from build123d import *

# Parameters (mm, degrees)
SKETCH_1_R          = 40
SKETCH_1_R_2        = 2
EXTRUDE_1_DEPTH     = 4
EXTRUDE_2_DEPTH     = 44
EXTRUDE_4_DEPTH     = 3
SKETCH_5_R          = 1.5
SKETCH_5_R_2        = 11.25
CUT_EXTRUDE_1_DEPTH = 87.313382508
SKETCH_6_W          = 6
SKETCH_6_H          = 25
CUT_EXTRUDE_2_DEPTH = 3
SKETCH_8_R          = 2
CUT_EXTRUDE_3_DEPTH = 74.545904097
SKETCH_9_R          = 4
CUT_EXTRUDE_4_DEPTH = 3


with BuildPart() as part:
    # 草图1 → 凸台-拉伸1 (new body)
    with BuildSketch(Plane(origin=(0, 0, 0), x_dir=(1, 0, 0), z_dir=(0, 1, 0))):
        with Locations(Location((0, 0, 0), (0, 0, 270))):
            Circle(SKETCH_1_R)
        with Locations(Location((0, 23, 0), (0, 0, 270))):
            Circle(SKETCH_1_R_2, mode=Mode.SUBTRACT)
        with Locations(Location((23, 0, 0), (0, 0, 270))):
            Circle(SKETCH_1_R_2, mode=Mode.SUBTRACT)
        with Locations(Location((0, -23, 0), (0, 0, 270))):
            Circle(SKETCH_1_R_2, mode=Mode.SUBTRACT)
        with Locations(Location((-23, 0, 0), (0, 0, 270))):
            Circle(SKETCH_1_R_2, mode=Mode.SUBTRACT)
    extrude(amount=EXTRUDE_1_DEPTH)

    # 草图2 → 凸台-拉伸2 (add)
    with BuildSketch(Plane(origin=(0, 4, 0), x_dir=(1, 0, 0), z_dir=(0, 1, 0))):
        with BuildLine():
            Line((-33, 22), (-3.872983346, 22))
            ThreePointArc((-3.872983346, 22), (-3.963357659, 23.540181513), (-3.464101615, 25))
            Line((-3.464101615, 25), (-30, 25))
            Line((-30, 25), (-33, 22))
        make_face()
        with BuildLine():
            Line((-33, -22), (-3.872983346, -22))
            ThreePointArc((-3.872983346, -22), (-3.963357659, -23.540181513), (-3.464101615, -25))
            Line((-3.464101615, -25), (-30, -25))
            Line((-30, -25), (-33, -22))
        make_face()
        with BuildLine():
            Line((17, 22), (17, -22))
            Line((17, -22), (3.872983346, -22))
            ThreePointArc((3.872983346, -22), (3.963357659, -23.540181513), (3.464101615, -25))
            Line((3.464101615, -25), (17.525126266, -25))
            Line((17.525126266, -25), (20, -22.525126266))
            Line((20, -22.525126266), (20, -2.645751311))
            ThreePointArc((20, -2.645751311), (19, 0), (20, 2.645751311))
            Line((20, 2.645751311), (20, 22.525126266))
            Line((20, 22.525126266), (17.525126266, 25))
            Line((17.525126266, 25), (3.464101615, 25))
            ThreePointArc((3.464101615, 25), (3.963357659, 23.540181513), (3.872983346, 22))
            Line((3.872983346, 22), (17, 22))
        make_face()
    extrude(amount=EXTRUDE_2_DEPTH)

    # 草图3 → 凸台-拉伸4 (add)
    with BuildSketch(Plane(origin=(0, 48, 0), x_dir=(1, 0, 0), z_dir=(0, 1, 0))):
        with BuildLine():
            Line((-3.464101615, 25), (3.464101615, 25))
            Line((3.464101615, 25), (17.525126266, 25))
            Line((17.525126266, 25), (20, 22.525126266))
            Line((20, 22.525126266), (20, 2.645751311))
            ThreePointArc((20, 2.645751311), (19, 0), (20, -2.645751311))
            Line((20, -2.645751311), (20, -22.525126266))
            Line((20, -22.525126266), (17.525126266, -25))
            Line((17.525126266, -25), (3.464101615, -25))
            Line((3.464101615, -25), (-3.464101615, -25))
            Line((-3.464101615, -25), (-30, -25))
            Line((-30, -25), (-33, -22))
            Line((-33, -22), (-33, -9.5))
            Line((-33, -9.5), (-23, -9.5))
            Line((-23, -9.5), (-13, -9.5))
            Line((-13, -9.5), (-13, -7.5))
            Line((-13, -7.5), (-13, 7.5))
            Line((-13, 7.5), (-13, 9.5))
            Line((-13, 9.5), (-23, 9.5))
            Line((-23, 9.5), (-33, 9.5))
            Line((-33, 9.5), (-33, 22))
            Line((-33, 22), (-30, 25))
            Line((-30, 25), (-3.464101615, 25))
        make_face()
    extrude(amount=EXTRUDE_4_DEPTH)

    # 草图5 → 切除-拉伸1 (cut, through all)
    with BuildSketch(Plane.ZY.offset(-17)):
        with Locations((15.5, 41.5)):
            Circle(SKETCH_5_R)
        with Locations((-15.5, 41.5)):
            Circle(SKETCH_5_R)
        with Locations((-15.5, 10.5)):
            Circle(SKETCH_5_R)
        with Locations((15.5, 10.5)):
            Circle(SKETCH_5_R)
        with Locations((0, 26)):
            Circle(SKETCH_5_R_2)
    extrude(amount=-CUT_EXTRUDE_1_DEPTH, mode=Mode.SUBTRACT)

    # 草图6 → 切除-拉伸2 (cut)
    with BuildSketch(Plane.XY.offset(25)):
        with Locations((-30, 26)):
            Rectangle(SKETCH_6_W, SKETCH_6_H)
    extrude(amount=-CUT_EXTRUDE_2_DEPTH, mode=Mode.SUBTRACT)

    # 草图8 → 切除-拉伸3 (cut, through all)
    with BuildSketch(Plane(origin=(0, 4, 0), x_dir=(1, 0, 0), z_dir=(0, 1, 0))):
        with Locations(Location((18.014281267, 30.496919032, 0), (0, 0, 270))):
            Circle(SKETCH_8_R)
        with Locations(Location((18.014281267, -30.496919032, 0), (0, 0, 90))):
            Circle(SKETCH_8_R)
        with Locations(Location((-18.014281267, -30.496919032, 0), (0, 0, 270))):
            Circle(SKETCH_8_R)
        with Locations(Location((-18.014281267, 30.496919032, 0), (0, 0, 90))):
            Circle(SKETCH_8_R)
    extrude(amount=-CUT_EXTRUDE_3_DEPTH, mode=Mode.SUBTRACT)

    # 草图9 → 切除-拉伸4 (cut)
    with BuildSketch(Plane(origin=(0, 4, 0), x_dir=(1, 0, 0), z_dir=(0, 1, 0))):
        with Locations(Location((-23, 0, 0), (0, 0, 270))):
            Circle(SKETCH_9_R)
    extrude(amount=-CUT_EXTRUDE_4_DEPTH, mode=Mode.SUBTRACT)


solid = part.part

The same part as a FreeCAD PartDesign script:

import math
import FreeCAD as App
import Part
import Sketcher

V = App.Vector


def add_polygon(sketch, points):
    """Adds a closed chain of lines whose ends are joined by coincident constraints."""
    first, n = sketch.GeometryCount, len(points)
    for a, b in zip(points, points[1:] + points[:1]):
        sketch.addGeometry(Part.LineSegment(App.Vector(*a, 0), App.Vector(*b, 0)), False)
    for i in range(n):
        sketch.addConstraint(Sketcher.Constraint("Coincident", first + i, 2, first + (i + 1) % n, 1))

doc = App.newDocument("Part")
params = doc.addObject("Spreadsheet::Sheet", "Params")
for row, (alias, value) in enumerate([
    ("sketch1_diameter", "80 mm"),
    ("sketch1_diameter2", "4 mm"),
    ("pad1_length", "4 mm"),
    ("sketch2_radius", "4 mm"),
    ("sketch2_height", "44 mm"),
    ("sketch2_length", "3.5 mm"),
    ("pad2_length", "44 mm"),
    ("sketch3_radius", "4 mm"),
    ("sketch3_width", "20 mm"),
    ("sketch3_height", "19 mm"),
    ("sketch3_height2", "12.5 mm"),
    ("sketch3_length", "3.5 mm"),
    ("pad3_length", "3 mm"),
    ("sketch4_diameter", "3 mm"),
    ("sketch4_diameter2", "22.5 mm"),
    ("sketch5_width", "6 mm"),
    ("sketch5_height", "25 mm"),
    ("pocket2_length", "3 mm"),
    ("sketch6_diameter", "4 mm"),
    ("sketch7_diameter", "8 mm"),
    ("pocket4_length", "3 mm"),
], start=1):
    params.set(f"A{row}", alias)
    params.set(f"B{row}", "=" + value)
    params.setAlias(f"B{row}", alias)

body = doc.addObject("PartDesign::Body", "Body")

# Sketch on XZ plane
sketch1 = body.newObject("Sketcher::SketchObject", "Sketch")
sketch1.AttachmentSupport = (doc.getObject("XZ_Plane"), [""])
sketch1.MapMode = "FlatFace"
sketch1.addGeometry([
    Part.Circle(V(0, 0, 0), V(0, 0, 1), 40),  # 0
    Part.Circle(V(0, -23, 0), V(0, 0, 1), 2),  # 1
    Part.Circle(V(-23, 0, 0), V(0, 0, 1), 2),  # 2
    Part.Circle(V(23, 0, 0), V(0, 0, 1), 2),  # 3
    Part.Circle(V(0, 23, 0), V(0, 0, 1), 2),  # 4
], False)
sketch1.addConstraint([
    Sketcher.Constraint("Coincident", 0, 3, -1, 1),
    Sketcher.Constraint("Equal", 1, 2),
    Sketcher.Constraint("Equal", 2, 3),
    Sketcher.Constraint("Equal", 3, 4),
    Sketcher.Constraint("Symmetric", 2, 3, 3, 3, -1, 1),
    Sketcher.Constraint("Symmetric", 1, 3, 4, 3, -1, 1),
    Sketcher.Constraint("PointOnObject", 1, 3, -2),
    Sketcher.Constraint("PointOnObject", 2, 3, -1),
    Sketcher.Constraint("Diameter", 0, 80.0),
    Sketcher.Constraint("Diameter", 1, 4.0),
    Sketcher.Constraint("DistanceY", 1, 3, -1, 1, 23.0),
    Sketcher.Constraint("DistanceX", 2, 3, -1, 1, 23.0),
])
sketch1.setExpression("Constraints[8]", "Params.sketch1_diameter")
sketch1.setExpression("Constraints[9]", "Params.sketch1_diameter2")
pad1 = body.newObject("PartDesign::Pad", "Pad")
pad1.Profile = sketch1
pad1.setExpression("Length", "Params.pad1_length")
pad1.Reversed = True

# Sketch on XZ plane
sketch2 = body.newObject("Sketcher::SketchObject", "Sketch001")
sketch2.AttachmentSupport = (doc.getObject("XZ_Plane"), [""])
sketch2.MapMode = "FlatFace"
sketch2.AttachmentOffset = App.Placement(V(0, 0, -4), App.Rotation())
sketch2.addGeometry([
    Part.LineSegment(V(-33, -22, 0), V(-3.9, -22, 0)),  # 0
    Part.ArcOfCircle(Part.Circle(V(0, -23, 0), V(0, 0, 1), 4), math.radians(166), math.radians(210)),  # 1
    Part.LineSegment(V(-3.5, -25, 0), V(-30, -25, 0)),  # 2
    Part.LineSegment(V(-30, -25, 0), V(-33, -22, 0)),  # 3
    Part.LineSegment(V(-3.9, 22, 0), V(-33, 22, 0)),  # 4
    Part.LineSegment(V(-33, 22, 0), V(-30, 25, 0)),  # 5
    Part.LineSegment(V(-30, 25, 0), V(-3.5, 25, 0)),  # 6
    Part.ArcOfCircle(Part.Circle(V(0, 23, 0), V(0, 0, 1), 4), math.radians(150), math.radians(194)),  # 7
    Part.LineSegment(V(17, -22, 0), V(17, 22, 0)),  # 8
    Part.LineSegment(V(17, 22, 0), V(3.9, 22, 0)),  # 9
    Part.ArcOfCircle(Part.Circle(V(0, 23, 0), V(0, 0, 1), 4), math.radians(-14), math.radians(30)),  # 10
    Part.LineSegment(V(3.5, 25, 0), V(17.5, 25, 0)),  # 11
    Part.LineSegment(V(17.5, 25, 0), V(20, 22.5, 0)),  # 12
    Part.LineSegment(V(20, 22.5, 0), V(20, 2.6, 0)),  # 13
    Part.ArcOfCircle(Part.Circle(V(23, 0, 0), V(0, 0, 1), 4), math.radians(139), math.radians(221)),  # 14
    Part.LineSegment(V(20, -2.6, 0), V(20, -22.5, 0)),  # 15
    Part.LineSegment(V(20, -22.5, 0), V(17.5, -25, 0)),  # 16
    Part.LineSegment(V(17.5, -25, 0), V(3.5, -25, 0)),  # 17
    Part.ArcOfCircle(Part.Circle(V(0, -23, 0), V(0, 0, 1), 4), math.radians(-30), math.radians(14)),  # 18
    Part.LineSegment(V(3.9, -22, 0), V(17, -22, 0)),  # 19
], False)
sketch2.addConstraint([
    Sketcher.Constraint("Coincident", 0, 2, 1, 1),
    Sketcher.Constraint("Coincident", 1, 2, 2, 1),
    Sketcher.Constraint("Coincident", 2, 2, 3, 1),
    Sketcher.Constraint("Coincident", 3, 2, 0, 1),
    Sketcher.Constraint("Coincident", 4, 2, 5, 1),
    Sketcher.Constraint("Coincident", 5, 2, 6, 1),
    Sketcher.Constraint("Coincident", 6, 2, 7, 1),
    Sketcher.Constraint("Coincident", 7, 2, 4, 1),
    Sketcher.Constraint("Coincident", 8, 2, 9, 1),
    Sketcher.Constraint("Coincident", 9, 2, 10, 1),
    Sketcher.Constraint("Coincident", 10, 2, 11, 1),
    Sketcher.Constraint("Coincident", 11, 2, 12, 1),
    Sketcher.Constraint("Coincident", 12, 2, 13, 1),
    Sketcher.Constraint("Coincident", 13, 2, 14, 1),
    Sketcher.Constraint("Coincident", 14, 2, 15, 1),
    Sketcher.Constraint("Coincident", 15, 2, 16, 1),
    Sketcher.Constraint("Coincident", 16, 2, 17, 1),
    Sketcher.Constraint("Coincident", 17, 2, 18, 1),
    Sketcher.Constraint("Coincident", 18, 2, 19, 1),
    Sketcher.Constraint("Coincident", 19, 2, 8, 1),
    Sketcher.Constraint("Horizontal", 0),
    Sketcher.Constraint("Horizontal", 2),
    Sketcher.Constraint("Horizontal", 4),
    Sketcher.Constraint("Horizontal", 6),
    Sketcher.Constraint("Vertical", 8),
    Sketcher.Constraint("Horizontal", 9),
    Sketcher.Constraint("Horizontal", 11),
    Sketcher.Constraint("Vertical", 13),
    Sketcher.Constraint("Vertical", 15),
    Sketcher.Constraint("Horizontal", 17),
    Sketcher.Constraint("Horizontal", 19),
    Sketcher.Constraint("Coincident", 10, 3, 7, 3),
    Sketcher.Constraint("Coincident", 18, 3, 1, 3),
    Sketcher.Constraint("Equal", 1, 7),
    Sketcher.Constraint("Equal", 7, 10),
    Sketcher.Constraint("Equal", 10, 14),
    Sketcher.Constraint("Equal", 14, 18),
    Sketcher.Constraint("Symmetric", 1, 3, 7, 3, -1, 1),
    Sketcher.Constraint("Symmetric", 7, 2, 9, 2, -2),
    Sketcher.Constraint("Symmetric", 3, 2, 4, 2, -1),
    Sketcher.Constraint("Symmetric", 2, 2, 5, 2, -1),
    Sketcher.Constraint("Symmetric", 13, 2, 14, 2, -1),
    Sketcher.Constraint("Symmetric", 11, 2, 16, 2, -1),
    Sketcher.Constraint("Perpendicular", 3, 5),
    Sketcher.Constraint("Perpendicular", 5, 12),
    Sketcher.Constraint("Perpendicular", 12, 16),
    Sketcher.Constraint("Horizontal", 6, 2, 10, 2),
    Sketcher.Constraint("Horizontal", 3, 2, 18, 2),
    Sketcher.Constraint("Radius", 1, 4.0),
    Sketcher.Constraint("DistanceY", 8, 1, 8, 2, 44.0),
    Sketcher.Constraint("DistanceY", 1, 3, -1, 1, 23.0),
    Sketcher.Constraint("DistanceX", -1, 1, 14, 3, 23.0),
    Sketcher.Constraint("DistanceY", 1, 2, -1, 1, 25.0),
    Sketcher.Constraint("DistanceX", 2, 2, -1, 1, 30.0),
    Sketcher.Constraint("DistanceX", -1, 1, 8, 2, 17.0),
    Sketcher.Constraint("DistanceX", -1, 1, 12, 2, 20.0),
    Sketcher.Constraint("Distance", 12, 3.5),
])
sketch2.setExpression("Constraints[48]", "Params.sketch2_radius")
sketch2.setExpression("Constraints[49]", "Params.sketch2_height")
sketch2.setExpression("Constraints[56]", "Params.sketch2_length")
pad2 = body.newObject("PartDesign::Pad", "Pad001")
pad2.Profile = sketch2
pad2.setExpression("Length", "Params.pad2_length")
pad2.Reversed = True

# Sketch on XZ plane
sketch3 = body.newObject("Sketcher::SketchObject", "Sketch002")
sketch3.AttachmentSupport = (doc.getObject("XZ_Plane"), [""])
sketch3.MapMode = "FlatFace"
sketch3.AttachmentOffset = App.Placement(V(0, 0, -48), App.Rotation())
sketch3.addGeometry([
    Part.LineSegment(V(20, -22.5, 0), V(17.5, -25, 0)),  # 0
    Part.LineSegment(V(17.5, -25, 0), V(-30, -25, 0)),  # 1
    Part.LineSegment(V(-30, -25, 0), V(-33, -22, 0)),  # 2
    Part.LineSegment(V(-33, -22, 0), V(-33, -9.5, 0)),  # 3
    Part.LineSegment(V(-33, -9.5, 0), V(-13, -9.5, 0)),  # 4
    Part.LineSegment(V(-13, -9.5, 0), V(-13, 9.5, 0)),  # 5
    Part.LineSegment(V(-13, 9.5, 0), V(-33, 9.5, 0)),  # 6
    Part.LineSegment(V(-33, 9.5, 0), V(-33, 22, 0)),  # 7
    Part.LineSegment(V(-33, 22, 0), V(-30, 25, 0)),  # 8
    Part.LineSegment(V(-30, 25, 0), V(17.5, 25, 0)),  # 9
    Part.LineSegment(V(17.5, 25, 0), V(20, 22.5, 0)),  # 10
    Part.LineSegment(V(20, 22.5, 0), V(20, 2.6, 0)),  # 11
    Part.ArcOfCircle(Part.Circle(V(23, 0, 0), V(0, 0, 1), 4), math.radians(139), math.radians(221)),  # 12
    Part.LineSegment(V(20, -2.6, 0), V(20, -22.5, 0)),  # 13
], False)
sketch3.addConstraint([
    Sketcher.Constraint("Coincident", 0, 2, 1, 1),
    Sketcher.Constraint("Coincident", 1, 2, 2, 1),
    Sketcher.Constraint("Coincident", 2, 2, 3, 1),
    Sketcher.Constraint("Coincident", 3, 2, 4, 1),
    Sketcher.Constraint("Coincident", 4, 2, 5, 1),
    Sketcher.Constraint("Coincident", 5, 2, 6, 1),
    Sketcher.Constraint("Coincident", 6, 2, 7, 1),
    Sketcher.Constraint("Coincident", 7, 2, 8, 1),
    Sketcher.Constraint("Coincident", 8, 2, 9, 1),
    Sketcher.Constraint("Coincident", 9, 2, 10, 1),
    Sketcher.Constraint("Coincident", 10, 2, 11, 1),
    Sketcher.Constraint("Coincident", 11, 2, 12, 1),
    Sketcher.Constraint("Coincident", 12, 2, 13, 1),
    Sketcher.Constraint("Coincident", 13, 2, 0, 1),
    Sketcher.Constraint("Horizontal", 1),
    Sketcher.Constraint("Vertical", 3),
    Sketcher.Constraint("Horizontal", 4),
    Sketcher.Constraint("Vertical", 5),
    Sketcher.Constraint("Horizontal", 6),
    Sketcher.Constraint("Vertical", 7),
    Sketcher.Constraint("Horizontal", 9),
    Sketcher.Constraint("Vertical", 11),
    Sketcher.Constraint("Vertical", 13),
    Sketcher.Constraint("Symmetric", 3, 2, 6, 2, -1),
    Sketcher.Constraint("Symmetric", 1, 2, 8, 2, -1),
    Sketcher.Constraint("Symmetric", 11, 2, 12, 2, -1),
    Sketcher.Constraint("Perpendicular", 0, 2),
    Sketcher.Constraint("Perpendicular", 2, 8),
    Sketcher.Constraint("Perpendicular", 8, 10),
    Sketcher.Constraint("Vertical", 0, 2, 9, 2),
    Sketcher.Constraint("Equal", 3, 7),
    Sketcher.Constraint("Radius", 12, 4.0),
    Sketcher.Constraint("DistanceX", 4, 1, 4, 2, 20.0),
    Sketcher.Constraint("DistanceY", 5, 1, 5, 2, 19.0),
    Sketcher.Constraint("DistanceY", 3, 1, 3, 2, 12.5),
    Sketcher.Constraint("DistanceX", -1, 1, 12, 3, 23.0),
    Sketcher.Constraint("DistanceY", 0, 2, -1, 1, 25.0),
    Sketcher.Constraint("DistanceX", 1, 2, -1, 1, 30.0),
    Sketcher.Constraint("DistanceX", -1, 1, 10, 2, 20.0),
    Sketcher.Constraint("Distance", 0, 3.5),
])
sketch3.setExpression("Constraints[31]", "Params.sketch3_radius")
sketch3.setExpression("Constraints[32]", "Params.sketch3_width")
sketch3.setExpression("Constraints[33]", "Params.sketch3_height")
sketch3.setExpression("Constraints[34]", "Params.sketch3_height2")
sketch3.setExpression("Constraints[39]", "Params.sketch3_length")
pad3 = body.newObject("PartDesign::Pad", "Pad002")
pad3.Profile = sketch3
pad3.setExpression("Length", "Params.pad3_length")
pad3.Reversed = True

# Sketch on YZ plane
sketch4 = body.newObject("Sketcher::SketchObject", "Sketch003")
sketch4.AttachmentSupport = (doc.getObject("YZ_Plane"), [""])
sketch4.MapMode = "FlatFace"
sketch4.AttachmentOffset = App.Placement(V(0, 0, 17), App.Rotation())
sketch4.addGeometry([
    Part.Circle(V(41.5, 15.5, 0), V(0, 0, 1), 1.5),  # 0
    Part.Circle(V(41.5, -15.5, 0), V(0, 0, 1), 1.5),  # 1
    Part.Circle(V(10.5, -15.5, 0), V(0, 0, 1), 1.5),  # 2
    Part.Circle(V(10.5, 15.5, 0), V(0, 0, 1), 1.5),  # 3
    Part.Circle(V(26, 0, 0), V(0, 0, 1), 11.2),  # 4
], False)
sketch4.addConstraint([
    Sketcher.Constraint("Equal", 0, 1),
    Sketcher.Constraint("Equal", 1, 2),
    Sketcher.Constraint("Equal", 2, 3),
    Sketcher.Constraint("Symmetric", 0, 3, 1, 3, -1),
    Sketcher.Constraint("Symmetric", 2, 3, 3, 3, -1),
    Sketcher.Constraint("PointOnObject", 4, 3, -1),
    Sketcher.Constraint("Horizontal", 1, 3, 2, 3),
    Sketcher.Constraint("Diameter", 0, 3.0),
    Sketcher.Constraint("Diameter", 4, 22.5),
    Sketcher.Constraint("DistanceX", -1, 1, 4, 3, 26.0),
    Sketcher.Constraint("DistanceY", 1, 3, 0, 3, 31.0),
    Sketcher.Constraint("DistanceX", 2, 3, 1, 3, 31.0),
    Sketcher.Constraint("DistanceX", -1, 1, 0, 3, 41.5),
])
sketch4.setExpression("Constraints[7]", "Params.sketch4_diameter")
sketch4.setExpression("Constraints[8]", "Params.sketch4_diameter2")
pocket1 = body.newObject("PartDesign::Pocket", "Pocket")
pocket1.Profile = sketch4
pocket1.Type = "ThroughAll"
pocket1.Reversed = True

# Sketch on XY plane
sketch5 = body.newObject("Sketcher::SketchObject", "Sketch004")
sketch5.AttachmentSupport = (doc.getObject("XY_Plane"), [""])
sketch5.MapMode = "FlatFace"
sketch5.AttachmentOffset = App.Placement(V(0, 0, 25), App.Rotation())
add_polygon(sketch5, [(-33, 38), (-33, 14), (-27, 14), (-27, 38)])  # lines 0-3
sketch5.addConstraint([
    Sketcher.Constraint("Vertical", 0),
    Sketcher.Constraint("Horizontal", 1),
    Sketcher.Constraint("Vertical", 2),
    Sketcher.Constraint("Horizontal", 3),
    Sketcher.Constraint("DistanceX", 1, 1, 1, 2, 6.0),
    Sketcher.Constraint("DistanceY", 0, 2, 0, 1, 25.0),
    Sketcher.Constraint("DistanceX", 0, 2, -1, 1, 33.0),
    Sketcher.Constraint("DistanceY", -1, 1, 0, 2, 13.5),
])
sketch5.setExpression("Constraints[8]", "Params.sketch5_width")
sketch5.setExpression("Constraints[9]", "Params.sketch5_height")
pocket2 = body.newObject("PartDesign::Pocket", "Pocket001")
pocket2.Profile = sketch5
pocket2.setExpression("Length", "Params.pocket2_length")

# Sketch on XZ plane
sketch6 = body.newObject("Sketcher::SketchObject", "Sketch005")
sketch6.AttachmentSupport = (doc.getObject("XZ_Plane"), [""])
sketch6.MapMode = "FlatFace"
sketch6.AttachmentOffset = App.Placement(V(0, 0, -4), App.Rotation())
sketch6.addGeometry([
    Part.Circle(V(18, -30.5, 0), V(0, 0, 1), 2),
    Part.Circle(V(18, 30.5, 0), V(0, 0, 1), 2),
    Part.Circle(V(-18, 30.5, 0), V(0, 0, 1), 2),
    Part.Circle(V(-18, -30.5, 0), V(0, 0, 1), 2),
], False)
sketch6.addConstraint([
    Sketcher.Constraint("Equal", 0, 1),
    Sketcher.Constraint("Equal", 1, 2),
    Sketcher.Constraint("Equal", 2, 3),
    Sketcher.Constraint("Symmetric", 0, 3, 2, 3, -1, 1),
    Sketcher.Constraint("Symmetric", 1, 3, 3, 3, -1, 1),
    Sketcher.Constraint("Symmetric", 1, 3, 2, 3, -2),
    Sketcher.Constraint("Diameter", 0, 4.0),
    Sketcher.Constraint("DistanceX", -1, 1, 0, 3, 18.014281),
    Sketcher.Constraint("DistanceY", 0, 3, -1, 1, 30.496919),
])
sketch6.setExpression("Constraints[6]", "Params.sketch6_diameter")
pocket3 = body.newObject("PartDesign::Pocket", "Pocket002")
pocket3.Profile = sketch6
pocket3.Type = "ThroughAll"
pocket3.Reversed = True

# Sketch on XZ plane
sketch7 = body.newObject("Sketcher::SketchObject", "Sketch006")
sketch7.AttachmentSupport = (doc.getObject("XZ_Plane"), [""])
sketch7.MapMode = "FlatFace"
sketch7.AttachmentOffset = App.Placement(V(0, 0, -4), App.Rotation())
sketch7.addGeometry(Part.Circle(V(-23, 0, 0), V(0, 0, 1), 4), False)
sketch7.addConstraint([
    Sketcher.Constraint("PointOnObject", 0, 3, -1),
    Sketcher.Constraint("Diameter", 0, 8.0),
    Sketcher.Constraint("DistanceX", 0, 3, -1, 1, 23.0),
])
sketch7.setExpression("Constraints[1]", "Params.sketch7_diameter")
pocket4 = body.newObject("PartDesign::Pocket", "Pocket003")
pocket4.Profile = sketch7
pocket4.setExpression("Length", "Params.pocket4_length")
pocket4.Reversed = True

doc.recompute()
